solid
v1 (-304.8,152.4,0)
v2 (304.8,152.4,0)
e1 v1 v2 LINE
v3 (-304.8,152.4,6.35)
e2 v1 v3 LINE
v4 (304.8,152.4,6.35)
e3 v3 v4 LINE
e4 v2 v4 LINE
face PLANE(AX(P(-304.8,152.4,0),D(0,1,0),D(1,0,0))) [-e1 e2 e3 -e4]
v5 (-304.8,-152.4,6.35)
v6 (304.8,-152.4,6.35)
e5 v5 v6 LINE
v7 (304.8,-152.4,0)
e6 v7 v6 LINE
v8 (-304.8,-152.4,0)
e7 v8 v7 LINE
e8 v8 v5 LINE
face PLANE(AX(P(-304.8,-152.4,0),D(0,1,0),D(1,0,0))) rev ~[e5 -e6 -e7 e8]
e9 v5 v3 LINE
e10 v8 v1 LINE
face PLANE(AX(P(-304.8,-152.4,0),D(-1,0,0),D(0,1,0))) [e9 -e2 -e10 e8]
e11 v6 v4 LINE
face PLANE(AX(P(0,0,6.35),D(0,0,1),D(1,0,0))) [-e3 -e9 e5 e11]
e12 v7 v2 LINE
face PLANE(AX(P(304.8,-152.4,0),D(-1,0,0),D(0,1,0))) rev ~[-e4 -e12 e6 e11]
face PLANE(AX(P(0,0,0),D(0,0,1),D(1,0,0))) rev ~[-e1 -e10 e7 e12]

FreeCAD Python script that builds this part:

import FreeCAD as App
import Part
import Sketcher
from FreeCAD import Vector
Q = App.Units.Quantity


def add_polygon(sketch, points):
    """Adds a closed chain of lines whose ends are joined by coincident constraints."""
    first, n = sketch.GeometryCount, len(points)
    for a, b in zip(points, points[1:] + points[:1]):
        sketch.addGeometry(Part.LineSegment(App.Vector(*a, 0), App.Vector(*b, 0)), False)
    for i in range(n):
        sketch.addConstraint(Sketcher.Constraint("Coincident", first + i, 2, first + (i + 1) % n, 1))

doc = App.newDocument("Part")
body = doc.addObject("PartDesign::Body", "Body")

sketch1 = body.newObject("Sketcher::SketchObject", "Sketch")
sketch1.AttachmentSupport = (doc.getObject("XY_Plane"), [""])
sketch1.MapMode = "FlatFace"
add_polygon(sketch1, [(-304.8, 152.4), (-304.8, -152.4), (304.8, -152.4), (304.8, 152.4)])
sketch1.addConstraint(Sketcher.Constraint("Vertical", 0))
sketch1.addConstraint(Sketcher.Constraint("Horizontal", 1))
sketch1.addConstraint(Sketcher.Constraint("Vertical", 2))
sketch1.addConstraint(Sketcher.Constraint("Horizontal", 3))
sketch1.addConstraint(Sketcher.Constraint("Symmetric", 0, 2, 2, 2, -1, 1))
sketch1.addConstraint(Sketcher.Constraint("DistanceX", 1, 1, 1, 2, Q("24 in")))
sketch1.addConstraint(Sketcher.Constraint("DistanceY", 0, 2, 0, 1, Q("12 in")))
pad1 = body.newObject("PartDesign::Pad", "Pad")
pad1.Profile = sketch1
pad1.Length = Q("0.25 in")

doc.recompute()
